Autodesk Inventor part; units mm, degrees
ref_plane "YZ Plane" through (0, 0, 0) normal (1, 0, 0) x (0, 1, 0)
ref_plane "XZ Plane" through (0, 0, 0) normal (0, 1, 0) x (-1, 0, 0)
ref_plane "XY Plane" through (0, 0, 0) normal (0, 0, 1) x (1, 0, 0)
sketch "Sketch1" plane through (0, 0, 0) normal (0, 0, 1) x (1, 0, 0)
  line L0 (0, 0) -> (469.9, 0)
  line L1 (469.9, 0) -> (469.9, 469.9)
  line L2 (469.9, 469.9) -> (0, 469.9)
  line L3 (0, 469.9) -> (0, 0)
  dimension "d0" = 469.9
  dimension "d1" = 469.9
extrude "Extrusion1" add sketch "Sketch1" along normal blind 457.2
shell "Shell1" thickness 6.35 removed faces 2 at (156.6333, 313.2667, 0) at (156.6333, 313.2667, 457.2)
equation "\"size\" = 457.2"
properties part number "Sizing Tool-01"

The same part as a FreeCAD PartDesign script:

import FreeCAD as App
import Part
import Sketcher

V = App.Vector
Q = App.Units.Quantity


def faces_at(feature, points):
    """Names of the faces that lie closest to the given points."""
    faces = feature.Shape.Faces
    near = lambda p: min(range(len(faces)), key=lambda i: faces[i].distToShape(Part.Vertex(*p))[0])
    return sorted({f"Face{near(p) + 1}" for p in points})


def add_polygon(sketch, points):
    """Adds a closed chain of lines whose ends are joined by coincident constraints."""
    first, n = sketch.GeometryCount, len(points)
    for a, b in zip(points, points[1:] + points[:1]):
        sketch.addGeometry(Part.LineSegment(App.Vector(*a, 0), App.Vector(*b, 0)), False)
    for i in range(n):
        sketch.addConstraint(Sketcher.Constraint("Coincident", first + i, 2, first + (i + 1) % n, 1))

doc = App.newDocument("Part")
body = doc.addObject("PartDesign::Body", "Body")

# Sketch on XY plane
sketch1 = body.newObject("Sketcher::SketchObject", "Sketch")
sketch1.AttachmentSupport = (doc.getObject("XY_Plane"), [""])
sketch1.MapMode = "FlatFace"
add_polygon(sketch1, [(0, 469.9), (0, 0), (469.9, 0), (469.9, 469.9)])  # lines 0-3
sketch1.addConstraint(Sketcher.Constraint("Vertical", 0))
sketch1.addConstraint(Sketcher.Constraint("Horizontal", 1))
sketch1.addConstraint(Sketcher.Constraint("Vertical", 2))
sketch1.addConstraint(Sketcher.Constraint("Horizontal", 3))
sketch1.addConstraint(Sketcher.Constraint("Coincident", 0, 2, -1, 1))
sketch1.addConstraint(Sketcher.Constraint("Equal", 3, 0))
sketch1.addConstraint(Sketcher.Constraint("DistanceX", 1, 1, 1, 2, Q("18.5 in")))
pad1 = body.newObject("PartDesign::Pad", "Pad")
pad1.Profile = sketch1
pad1.Length = Q("18 in")
doc.recompute()

thickness = body.newObject("PartDesign::Thickness", "Thickness")
thickness.Base = (pad1, faces_at(pad1, [(156.633, 313.267, 0), (156.633, 313.267, 457.2)]))
thickness.Value = Q("0.25 in")
thickness.Reversed = True
thickness.Join = "Intersection"

doc.recompute()
